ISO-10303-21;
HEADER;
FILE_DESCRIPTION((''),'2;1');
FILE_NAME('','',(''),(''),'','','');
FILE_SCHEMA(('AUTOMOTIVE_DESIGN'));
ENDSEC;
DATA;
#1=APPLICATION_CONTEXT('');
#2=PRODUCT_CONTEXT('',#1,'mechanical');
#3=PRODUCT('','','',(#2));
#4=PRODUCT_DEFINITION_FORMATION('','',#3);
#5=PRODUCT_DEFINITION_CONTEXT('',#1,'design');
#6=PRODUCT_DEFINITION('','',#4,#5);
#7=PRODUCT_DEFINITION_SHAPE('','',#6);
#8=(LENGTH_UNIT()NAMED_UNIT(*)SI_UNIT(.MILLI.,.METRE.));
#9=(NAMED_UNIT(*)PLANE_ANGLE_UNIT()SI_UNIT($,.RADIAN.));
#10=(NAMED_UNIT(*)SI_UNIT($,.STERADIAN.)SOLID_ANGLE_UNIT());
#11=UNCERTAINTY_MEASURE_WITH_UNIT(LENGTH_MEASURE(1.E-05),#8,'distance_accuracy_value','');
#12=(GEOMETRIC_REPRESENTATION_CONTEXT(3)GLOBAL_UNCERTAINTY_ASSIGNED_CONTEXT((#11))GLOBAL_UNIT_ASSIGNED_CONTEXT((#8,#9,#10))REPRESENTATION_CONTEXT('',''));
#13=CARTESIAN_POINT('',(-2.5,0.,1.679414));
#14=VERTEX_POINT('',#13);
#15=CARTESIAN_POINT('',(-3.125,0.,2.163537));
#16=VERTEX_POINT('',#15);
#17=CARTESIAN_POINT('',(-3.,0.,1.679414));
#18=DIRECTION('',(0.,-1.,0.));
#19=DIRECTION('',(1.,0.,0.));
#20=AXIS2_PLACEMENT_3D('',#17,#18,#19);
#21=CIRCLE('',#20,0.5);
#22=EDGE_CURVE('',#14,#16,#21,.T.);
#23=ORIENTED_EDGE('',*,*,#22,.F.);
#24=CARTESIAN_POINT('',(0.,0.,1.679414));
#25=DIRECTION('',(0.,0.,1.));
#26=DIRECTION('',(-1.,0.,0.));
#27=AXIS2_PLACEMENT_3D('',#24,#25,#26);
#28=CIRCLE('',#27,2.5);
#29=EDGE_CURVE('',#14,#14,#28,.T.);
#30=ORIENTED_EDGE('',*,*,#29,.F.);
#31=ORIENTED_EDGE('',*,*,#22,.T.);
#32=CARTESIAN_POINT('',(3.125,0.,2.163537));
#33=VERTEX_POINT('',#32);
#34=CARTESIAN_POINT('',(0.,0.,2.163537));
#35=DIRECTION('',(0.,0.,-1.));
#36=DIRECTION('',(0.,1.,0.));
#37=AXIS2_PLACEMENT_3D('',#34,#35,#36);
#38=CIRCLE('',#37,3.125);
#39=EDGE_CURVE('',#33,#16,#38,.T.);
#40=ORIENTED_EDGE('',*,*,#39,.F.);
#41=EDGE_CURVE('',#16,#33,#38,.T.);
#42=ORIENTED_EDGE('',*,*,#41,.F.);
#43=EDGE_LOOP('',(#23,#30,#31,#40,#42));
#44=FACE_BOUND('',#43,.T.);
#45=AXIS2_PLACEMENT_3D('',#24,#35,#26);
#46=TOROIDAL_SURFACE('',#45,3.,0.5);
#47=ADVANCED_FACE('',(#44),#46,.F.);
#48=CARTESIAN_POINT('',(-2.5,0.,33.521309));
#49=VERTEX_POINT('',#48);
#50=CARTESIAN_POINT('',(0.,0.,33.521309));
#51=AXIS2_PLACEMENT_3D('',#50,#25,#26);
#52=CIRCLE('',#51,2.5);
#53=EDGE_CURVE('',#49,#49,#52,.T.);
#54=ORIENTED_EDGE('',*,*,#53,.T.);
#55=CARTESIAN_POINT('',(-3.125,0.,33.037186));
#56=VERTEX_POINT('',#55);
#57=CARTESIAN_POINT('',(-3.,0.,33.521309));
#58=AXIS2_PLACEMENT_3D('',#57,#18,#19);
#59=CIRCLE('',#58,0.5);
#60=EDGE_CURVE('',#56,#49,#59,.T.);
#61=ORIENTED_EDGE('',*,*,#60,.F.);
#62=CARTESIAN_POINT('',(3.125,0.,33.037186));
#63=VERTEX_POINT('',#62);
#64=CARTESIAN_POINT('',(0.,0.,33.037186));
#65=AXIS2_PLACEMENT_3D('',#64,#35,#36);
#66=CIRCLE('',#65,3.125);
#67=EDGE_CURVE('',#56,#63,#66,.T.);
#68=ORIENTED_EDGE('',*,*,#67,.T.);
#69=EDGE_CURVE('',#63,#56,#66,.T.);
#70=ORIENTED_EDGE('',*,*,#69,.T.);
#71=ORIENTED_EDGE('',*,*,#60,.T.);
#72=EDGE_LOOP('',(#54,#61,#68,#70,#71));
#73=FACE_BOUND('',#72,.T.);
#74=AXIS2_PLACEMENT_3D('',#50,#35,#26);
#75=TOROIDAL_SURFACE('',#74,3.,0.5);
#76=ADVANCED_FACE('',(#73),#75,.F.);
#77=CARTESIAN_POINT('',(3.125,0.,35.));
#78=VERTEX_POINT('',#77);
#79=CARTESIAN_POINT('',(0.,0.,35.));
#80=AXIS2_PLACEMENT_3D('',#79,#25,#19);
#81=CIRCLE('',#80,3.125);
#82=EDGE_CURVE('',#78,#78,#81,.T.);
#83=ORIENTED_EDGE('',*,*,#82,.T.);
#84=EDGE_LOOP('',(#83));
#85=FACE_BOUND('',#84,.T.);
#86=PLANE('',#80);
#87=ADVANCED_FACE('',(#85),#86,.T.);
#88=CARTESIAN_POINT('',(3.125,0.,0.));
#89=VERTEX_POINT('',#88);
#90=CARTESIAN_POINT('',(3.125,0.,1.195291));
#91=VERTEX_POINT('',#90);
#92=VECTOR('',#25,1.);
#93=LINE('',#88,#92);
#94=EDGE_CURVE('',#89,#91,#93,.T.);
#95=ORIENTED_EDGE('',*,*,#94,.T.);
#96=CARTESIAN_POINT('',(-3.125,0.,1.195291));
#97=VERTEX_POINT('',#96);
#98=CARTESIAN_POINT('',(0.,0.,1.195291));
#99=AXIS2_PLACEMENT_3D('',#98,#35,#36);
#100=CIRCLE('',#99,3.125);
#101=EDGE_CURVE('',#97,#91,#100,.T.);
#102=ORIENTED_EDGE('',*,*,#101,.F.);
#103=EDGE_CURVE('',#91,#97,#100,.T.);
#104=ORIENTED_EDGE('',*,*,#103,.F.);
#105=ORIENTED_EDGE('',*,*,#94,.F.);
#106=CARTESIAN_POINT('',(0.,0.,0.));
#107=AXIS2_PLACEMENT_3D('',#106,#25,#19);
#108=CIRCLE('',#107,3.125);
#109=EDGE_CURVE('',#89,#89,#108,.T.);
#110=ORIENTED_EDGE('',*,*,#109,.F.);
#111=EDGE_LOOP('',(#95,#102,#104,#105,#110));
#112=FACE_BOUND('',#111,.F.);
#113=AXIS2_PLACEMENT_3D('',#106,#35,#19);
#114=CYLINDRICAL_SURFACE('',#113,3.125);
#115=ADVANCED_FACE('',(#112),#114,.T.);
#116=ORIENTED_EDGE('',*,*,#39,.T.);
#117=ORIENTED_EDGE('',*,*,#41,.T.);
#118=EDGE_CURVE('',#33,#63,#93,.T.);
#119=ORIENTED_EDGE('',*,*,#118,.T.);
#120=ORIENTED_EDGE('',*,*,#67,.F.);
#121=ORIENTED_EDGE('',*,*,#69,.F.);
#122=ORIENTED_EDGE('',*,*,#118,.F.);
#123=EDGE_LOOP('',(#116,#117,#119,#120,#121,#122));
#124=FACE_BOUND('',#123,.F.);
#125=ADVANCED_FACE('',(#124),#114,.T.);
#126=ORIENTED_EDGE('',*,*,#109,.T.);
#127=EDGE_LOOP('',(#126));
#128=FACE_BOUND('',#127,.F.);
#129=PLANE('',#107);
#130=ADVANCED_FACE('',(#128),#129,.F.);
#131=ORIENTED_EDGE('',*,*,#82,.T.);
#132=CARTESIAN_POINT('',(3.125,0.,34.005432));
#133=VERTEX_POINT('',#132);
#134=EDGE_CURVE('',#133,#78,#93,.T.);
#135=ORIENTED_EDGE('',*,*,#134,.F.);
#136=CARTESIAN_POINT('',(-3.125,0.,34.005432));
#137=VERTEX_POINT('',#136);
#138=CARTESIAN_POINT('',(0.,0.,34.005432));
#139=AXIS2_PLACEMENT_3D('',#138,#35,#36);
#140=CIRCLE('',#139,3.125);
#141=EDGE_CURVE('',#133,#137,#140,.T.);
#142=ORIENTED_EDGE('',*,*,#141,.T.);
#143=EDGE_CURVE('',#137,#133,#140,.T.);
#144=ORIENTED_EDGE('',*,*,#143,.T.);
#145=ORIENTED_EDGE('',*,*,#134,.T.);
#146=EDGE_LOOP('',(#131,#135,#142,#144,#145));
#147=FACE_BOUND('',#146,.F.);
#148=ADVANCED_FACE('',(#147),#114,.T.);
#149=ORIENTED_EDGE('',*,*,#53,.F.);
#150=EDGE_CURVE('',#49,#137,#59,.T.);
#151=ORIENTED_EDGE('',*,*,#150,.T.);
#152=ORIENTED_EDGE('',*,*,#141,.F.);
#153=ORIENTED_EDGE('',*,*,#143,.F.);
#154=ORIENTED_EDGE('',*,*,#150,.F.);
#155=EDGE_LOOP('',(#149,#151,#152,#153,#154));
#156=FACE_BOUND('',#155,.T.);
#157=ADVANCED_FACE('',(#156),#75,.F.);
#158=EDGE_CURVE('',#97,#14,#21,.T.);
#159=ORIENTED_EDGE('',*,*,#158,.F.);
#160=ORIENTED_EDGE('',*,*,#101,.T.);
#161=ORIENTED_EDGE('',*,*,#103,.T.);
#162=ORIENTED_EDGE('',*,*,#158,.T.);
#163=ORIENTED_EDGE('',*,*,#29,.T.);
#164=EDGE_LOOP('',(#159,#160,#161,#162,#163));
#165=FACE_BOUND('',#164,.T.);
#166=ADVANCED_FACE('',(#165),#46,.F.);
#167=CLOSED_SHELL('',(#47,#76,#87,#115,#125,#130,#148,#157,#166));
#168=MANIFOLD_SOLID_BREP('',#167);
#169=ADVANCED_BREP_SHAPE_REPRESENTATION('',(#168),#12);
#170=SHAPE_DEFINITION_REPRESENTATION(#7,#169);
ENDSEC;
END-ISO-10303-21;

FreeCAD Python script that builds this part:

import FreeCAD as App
import Part
import Sketcher
Q = App.Units.Quantity

doc = App.newDocument("Part")
body = doc.addObject("PartDesign::Body", "Body")

sketch1 = doc.addObject("Sketcher::SketchObject", "Sketch")
body.addObject(sketch1)
sketch1.AttachmentSupport = (doc.XY_Plane, [""])
sketch1.MapMode = "FlatFace"
sketch1.addGeometry(Part.Circle(App.Vector(0, 0, 0), App.Vector(0, 0, 1), 3.1), False)
sketch1.addConstraint(Sketcher.Constraint("Coincident", 0, 3, -1, 1))
sketch1.addConstraint(Sketcher.Constraint("Diameter", 0, Q("6.25 mm")))
pad1 = doc.addObject("PartDesign::Pad", "Pad")
body.addObject(pad1)
pad1.Profile = sketch1
pad1.Length = 35

sketch2 = doc.addObject("Sketcher::SketchObject", "Sketch001")
body.addObject(sketch2)
sketch2.AttachmentSupport = (doc.XZ_Plane, [""])
sketch2.MapMode = "FlatFace"
sketch2.addGeometry(Part.Circle(App.Vector(-3, 1.7, 0), App.Vector(0, 0, 1), 0.5), False)
sketch2.addConstraint(Sketcher.Constraint("Diameter", 0, Q("1 mm")))
sketch2.addConstraint(Sketcher.Constraint("DistanceX", 0, 3, -1, 1, Q("3 mm")))
sketch2.addConstraint(Sketcher.Constraint("DistanceY", -1, 1, 0, 3, Q("1.679414 mm")))
groove = doc.addObject("PartDesign::Groove", "Groove")
body.addObject(groove)
groove.Profile = sketch2
groove.ReferenceAxis = (sketch2, ["V_Axis"])
groove.Angle = 360

sketch3 = doc.addObject("Sketcher::SketchObject", "Sketch002")
body.addObject(sketch3)
sketch3.AttachmentSupport = (doc.XZ_Plane, [""])
sketch3.MapMode = "FlatFace"
sketch3.addGeometry(Part.Circle(App.Vector(-3, 33.5, 0), App.Vector(0, 0, 1), 0.5), False)
sketch3.addConstraint(Sketcher.Constraint("Diameter", 0, Q("1 mm")))
sketch3.addConstraint(Sketcher.Constraint("DistanceX", 0, 3, -1, 1, Q("3 mm")))
sketch3.addConstraint(Sketcher.Constraint("DistanceY", -1, 1, 0, 3, Q("33.521309 mm")))
groove2 = doc.addObject("PartDesign::Groove", "Groove001")
body.addObject(groove2)
groove2.Profile = sketch3
groove2.ReferenceAxis = (sketch3, ["V_Axis"])
groove2.Angle = 360

doc.recompute()
